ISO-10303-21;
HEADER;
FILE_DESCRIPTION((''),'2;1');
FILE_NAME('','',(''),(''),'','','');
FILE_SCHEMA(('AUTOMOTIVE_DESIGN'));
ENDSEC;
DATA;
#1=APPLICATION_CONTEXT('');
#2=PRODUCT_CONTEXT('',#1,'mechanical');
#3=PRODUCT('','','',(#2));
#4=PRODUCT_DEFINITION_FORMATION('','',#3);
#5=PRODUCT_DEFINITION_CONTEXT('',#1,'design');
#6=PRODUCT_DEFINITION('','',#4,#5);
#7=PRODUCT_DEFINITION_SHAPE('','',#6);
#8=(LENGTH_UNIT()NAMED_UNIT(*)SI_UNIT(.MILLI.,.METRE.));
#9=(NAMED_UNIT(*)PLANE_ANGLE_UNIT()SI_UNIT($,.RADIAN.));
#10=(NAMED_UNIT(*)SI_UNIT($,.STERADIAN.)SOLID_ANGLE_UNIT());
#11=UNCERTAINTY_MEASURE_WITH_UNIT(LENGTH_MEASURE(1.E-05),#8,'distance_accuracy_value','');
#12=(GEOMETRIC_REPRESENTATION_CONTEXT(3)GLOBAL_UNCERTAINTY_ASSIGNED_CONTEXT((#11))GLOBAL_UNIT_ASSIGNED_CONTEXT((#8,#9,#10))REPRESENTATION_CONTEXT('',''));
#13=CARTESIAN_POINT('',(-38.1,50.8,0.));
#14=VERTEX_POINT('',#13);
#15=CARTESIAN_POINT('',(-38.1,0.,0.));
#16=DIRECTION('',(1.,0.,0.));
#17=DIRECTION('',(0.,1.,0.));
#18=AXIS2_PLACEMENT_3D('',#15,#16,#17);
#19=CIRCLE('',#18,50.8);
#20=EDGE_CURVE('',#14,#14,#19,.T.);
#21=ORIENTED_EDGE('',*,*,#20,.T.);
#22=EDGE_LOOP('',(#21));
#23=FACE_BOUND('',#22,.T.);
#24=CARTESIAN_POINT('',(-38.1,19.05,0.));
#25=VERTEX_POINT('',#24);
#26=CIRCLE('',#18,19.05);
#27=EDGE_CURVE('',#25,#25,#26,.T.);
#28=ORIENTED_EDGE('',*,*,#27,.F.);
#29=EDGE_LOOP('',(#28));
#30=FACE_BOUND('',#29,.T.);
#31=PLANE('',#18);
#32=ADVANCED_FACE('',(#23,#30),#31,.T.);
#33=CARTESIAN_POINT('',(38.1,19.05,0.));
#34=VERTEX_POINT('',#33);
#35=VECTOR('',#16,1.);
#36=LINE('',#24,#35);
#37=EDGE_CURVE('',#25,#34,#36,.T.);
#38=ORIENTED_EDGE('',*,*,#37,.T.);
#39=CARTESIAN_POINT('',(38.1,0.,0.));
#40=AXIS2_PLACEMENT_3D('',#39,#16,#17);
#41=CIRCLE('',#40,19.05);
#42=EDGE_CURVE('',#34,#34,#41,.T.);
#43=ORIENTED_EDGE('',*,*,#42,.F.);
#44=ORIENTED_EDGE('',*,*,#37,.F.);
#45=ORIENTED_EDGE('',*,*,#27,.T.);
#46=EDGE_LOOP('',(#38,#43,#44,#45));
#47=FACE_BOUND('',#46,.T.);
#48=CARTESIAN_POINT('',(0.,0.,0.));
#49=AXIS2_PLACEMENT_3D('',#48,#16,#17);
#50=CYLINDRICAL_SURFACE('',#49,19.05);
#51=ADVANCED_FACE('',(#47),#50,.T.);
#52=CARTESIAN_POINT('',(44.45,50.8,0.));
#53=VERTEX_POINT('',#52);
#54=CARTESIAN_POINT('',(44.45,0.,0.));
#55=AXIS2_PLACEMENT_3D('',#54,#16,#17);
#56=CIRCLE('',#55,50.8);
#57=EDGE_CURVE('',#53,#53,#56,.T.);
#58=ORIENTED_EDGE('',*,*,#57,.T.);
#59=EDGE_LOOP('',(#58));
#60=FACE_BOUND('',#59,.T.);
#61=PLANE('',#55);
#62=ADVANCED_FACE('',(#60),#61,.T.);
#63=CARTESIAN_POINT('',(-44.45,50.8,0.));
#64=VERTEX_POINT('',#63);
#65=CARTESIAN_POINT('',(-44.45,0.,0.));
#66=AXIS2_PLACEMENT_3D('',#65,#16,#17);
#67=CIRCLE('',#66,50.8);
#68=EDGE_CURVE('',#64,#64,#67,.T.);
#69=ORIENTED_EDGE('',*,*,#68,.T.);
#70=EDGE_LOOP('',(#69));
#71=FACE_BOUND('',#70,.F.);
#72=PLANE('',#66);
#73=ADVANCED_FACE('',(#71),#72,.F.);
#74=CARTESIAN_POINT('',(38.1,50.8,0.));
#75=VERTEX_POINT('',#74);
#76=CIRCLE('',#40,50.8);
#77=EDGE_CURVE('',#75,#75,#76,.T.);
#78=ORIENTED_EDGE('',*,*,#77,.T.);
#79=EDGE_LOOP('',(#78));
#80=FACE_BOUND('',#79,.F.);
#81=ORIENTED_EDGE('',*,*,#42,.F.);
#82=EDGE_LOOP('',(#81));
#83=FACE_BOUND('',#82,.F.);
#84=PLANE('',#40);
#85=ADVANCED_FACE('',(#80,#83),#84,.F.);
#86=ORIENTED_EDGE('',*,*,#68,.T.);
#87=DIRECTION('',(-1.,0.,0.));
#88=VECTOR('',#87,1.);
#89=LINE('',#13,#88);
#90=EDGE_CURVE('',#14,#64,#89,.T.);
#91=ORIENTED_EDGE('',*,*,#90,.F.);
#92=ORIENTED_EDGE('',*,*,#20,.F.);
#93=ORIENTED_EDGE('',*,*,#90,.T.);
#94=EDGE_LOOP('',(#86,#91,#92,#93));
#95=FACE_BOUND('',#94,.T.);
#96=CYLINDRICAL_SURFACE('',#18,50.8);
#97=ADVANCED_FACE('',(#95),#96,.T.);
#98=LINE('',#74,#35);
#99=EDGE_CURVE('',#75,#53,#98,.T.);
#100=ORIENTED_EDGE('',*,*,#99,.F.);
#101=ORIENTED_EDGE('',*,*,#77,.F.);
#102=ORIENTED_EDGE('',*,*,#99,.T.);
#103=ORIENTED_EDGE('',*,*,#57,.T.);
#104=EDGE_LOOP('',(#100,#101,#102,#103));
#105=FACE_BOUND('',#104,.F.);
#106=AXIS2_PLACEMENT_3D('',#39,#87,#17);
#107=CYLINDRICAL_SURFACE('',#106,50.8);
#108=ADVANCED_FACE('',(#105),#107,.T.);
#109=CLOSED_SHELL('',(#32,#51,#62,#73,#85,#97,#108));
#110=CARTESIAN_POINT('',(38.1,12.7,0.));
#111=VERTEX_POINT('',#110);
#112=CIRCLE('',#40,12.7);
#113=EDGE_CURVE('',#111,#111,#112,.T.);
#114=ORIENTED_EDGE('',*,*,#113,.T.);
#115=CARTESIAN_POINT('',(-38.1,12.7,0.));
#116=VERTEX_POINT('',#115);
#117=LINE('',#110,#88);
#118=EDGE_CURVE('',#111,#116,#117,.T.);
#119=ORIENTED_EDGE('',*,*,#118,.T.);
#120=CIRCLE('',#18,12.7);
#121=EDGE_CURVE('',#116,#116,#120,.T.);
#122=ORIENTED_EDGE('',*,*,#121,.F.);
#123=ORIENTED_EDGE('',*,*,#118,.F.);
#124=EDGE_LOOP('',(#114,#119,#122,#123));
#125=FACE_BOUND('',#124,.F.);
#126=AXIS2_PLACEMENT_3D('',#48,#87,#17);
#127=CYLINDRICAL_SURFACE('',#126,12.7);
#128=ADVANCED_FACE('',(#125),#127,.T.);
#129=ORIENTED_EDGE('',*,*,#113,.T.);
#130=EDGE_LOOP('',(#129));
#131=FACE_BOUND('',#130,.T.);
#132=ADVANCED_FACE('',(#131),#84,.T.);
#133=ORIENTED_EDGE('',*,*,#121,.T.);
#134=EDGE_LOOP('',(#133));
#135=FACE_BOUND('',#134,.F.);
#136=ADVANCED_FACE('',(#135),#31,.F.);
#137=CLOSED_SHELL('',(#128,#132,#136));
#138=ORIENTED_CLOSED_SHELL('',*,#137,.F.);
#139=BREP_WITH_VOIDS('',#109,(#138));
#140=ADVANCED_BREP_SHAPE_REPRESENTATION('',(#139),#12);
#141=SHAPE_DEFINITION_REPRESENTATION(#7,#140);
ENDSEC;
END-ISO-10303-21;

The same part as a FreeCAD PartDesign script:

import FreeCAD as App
import Part
import Sketcher
Q = App.Units.Quantity

doc = App.newDocument("Part")
body = doc.addObject("PartDesign::Body", "Body")

# Sketch on YZ plane
sketch1 = body.newObject("Sketcher::SketchObject", "Sketch")
sketch1.AttachmentSupport = (doc.getObject("YZ_Plane"), [""])
sketch1.MapMode = "FlatFace"
sketch1.AttachmentOffset = App.Placement(App.Vector(0, 0, -1.5 * 25.4), App.Rotation())
sketch1.addGeometry(Part.Circle(App.Vector(0, 0, 0), App.Vector(0, 0, 1), 51), False)
sketch1.addConstraint(Sketcher.Constraint("Coincident", 0, 3, -1, 1))
sketch1.addConstraint(Sketcher.Constraint("Diameter", 0, Q("4 in")))
pad1 = body.newObject("PartDesign::Pad", "Pad")
pad1.Profile = sketch1
pad1.Length = Q("0.25 in")
pad1.Reversed = True

# Sketch on YZ plane
sketch2 = body.newObject("Sketcher::SketchObject", "Sketch001")
sketch2.AttachmentSupport = (doc.getObject("YZ_Plane"), [""])
sketch2.MapMode = "FlatFace"
sketch2.addGeometry(Part.Circle(App.Vector(0, 0, 0), App.Vector(0, 0, 1), 19), False)
sketch2.addGeometry(Part.Circle(App.Vector(0, 0, 0), App.Vector(0, 0, 1), 13), False)
sketch2.addConstraint(Sketcher.Constraint("Coincident", 0, 3, -1, 1))
sketch2.addConstraint(Sketcher.Constraint("Coincident", 1, 3, -1, 1))
sketch2.addConstraint(Sketcher.Constraint("Diameter", 1, Q("1 in")))
sketch2.addConstraint(Sketcher.Constraint("Diameter", 0, Q("1.5 in")))
pad2 = body.newObject("PartDesign::Pad", "Pad001")
pad2.Profile = sketch2
pad2.Length = Q("3 in")
pad2.Midplane = True

# Sketch on YZ plane
sketch3 = body.newObject("Sketcher::SketchObject", "Sketch002")
sketch3.AttachmentSupport = (doc.getObject("YZ_Plane"), [""])
sketch3.MapMode = "FlatFace"
sketch3.AttachmentOffset = App.Placement(App.Vector(0, 0, 1.5 * 25.4), App.Rotation())
sketch3.addGeometry(Part.Circle(App.Vector(0, 0, 0), App.Vector(0, 0, 1), 51), False)
sketch3.addConstraint(Sketcher.Constraint("Coincident", 0, 3, -1, 1))
sketch3.addConstraint(Sketcher.Constraint("Diameter", 0, Q("4 in")))
pad3 = body.newObject("PartDesign::Pad", "Pad002")
pad3.Profile = sketch3
pad3.Length = Q("0.25 in")

doc.recompute()
